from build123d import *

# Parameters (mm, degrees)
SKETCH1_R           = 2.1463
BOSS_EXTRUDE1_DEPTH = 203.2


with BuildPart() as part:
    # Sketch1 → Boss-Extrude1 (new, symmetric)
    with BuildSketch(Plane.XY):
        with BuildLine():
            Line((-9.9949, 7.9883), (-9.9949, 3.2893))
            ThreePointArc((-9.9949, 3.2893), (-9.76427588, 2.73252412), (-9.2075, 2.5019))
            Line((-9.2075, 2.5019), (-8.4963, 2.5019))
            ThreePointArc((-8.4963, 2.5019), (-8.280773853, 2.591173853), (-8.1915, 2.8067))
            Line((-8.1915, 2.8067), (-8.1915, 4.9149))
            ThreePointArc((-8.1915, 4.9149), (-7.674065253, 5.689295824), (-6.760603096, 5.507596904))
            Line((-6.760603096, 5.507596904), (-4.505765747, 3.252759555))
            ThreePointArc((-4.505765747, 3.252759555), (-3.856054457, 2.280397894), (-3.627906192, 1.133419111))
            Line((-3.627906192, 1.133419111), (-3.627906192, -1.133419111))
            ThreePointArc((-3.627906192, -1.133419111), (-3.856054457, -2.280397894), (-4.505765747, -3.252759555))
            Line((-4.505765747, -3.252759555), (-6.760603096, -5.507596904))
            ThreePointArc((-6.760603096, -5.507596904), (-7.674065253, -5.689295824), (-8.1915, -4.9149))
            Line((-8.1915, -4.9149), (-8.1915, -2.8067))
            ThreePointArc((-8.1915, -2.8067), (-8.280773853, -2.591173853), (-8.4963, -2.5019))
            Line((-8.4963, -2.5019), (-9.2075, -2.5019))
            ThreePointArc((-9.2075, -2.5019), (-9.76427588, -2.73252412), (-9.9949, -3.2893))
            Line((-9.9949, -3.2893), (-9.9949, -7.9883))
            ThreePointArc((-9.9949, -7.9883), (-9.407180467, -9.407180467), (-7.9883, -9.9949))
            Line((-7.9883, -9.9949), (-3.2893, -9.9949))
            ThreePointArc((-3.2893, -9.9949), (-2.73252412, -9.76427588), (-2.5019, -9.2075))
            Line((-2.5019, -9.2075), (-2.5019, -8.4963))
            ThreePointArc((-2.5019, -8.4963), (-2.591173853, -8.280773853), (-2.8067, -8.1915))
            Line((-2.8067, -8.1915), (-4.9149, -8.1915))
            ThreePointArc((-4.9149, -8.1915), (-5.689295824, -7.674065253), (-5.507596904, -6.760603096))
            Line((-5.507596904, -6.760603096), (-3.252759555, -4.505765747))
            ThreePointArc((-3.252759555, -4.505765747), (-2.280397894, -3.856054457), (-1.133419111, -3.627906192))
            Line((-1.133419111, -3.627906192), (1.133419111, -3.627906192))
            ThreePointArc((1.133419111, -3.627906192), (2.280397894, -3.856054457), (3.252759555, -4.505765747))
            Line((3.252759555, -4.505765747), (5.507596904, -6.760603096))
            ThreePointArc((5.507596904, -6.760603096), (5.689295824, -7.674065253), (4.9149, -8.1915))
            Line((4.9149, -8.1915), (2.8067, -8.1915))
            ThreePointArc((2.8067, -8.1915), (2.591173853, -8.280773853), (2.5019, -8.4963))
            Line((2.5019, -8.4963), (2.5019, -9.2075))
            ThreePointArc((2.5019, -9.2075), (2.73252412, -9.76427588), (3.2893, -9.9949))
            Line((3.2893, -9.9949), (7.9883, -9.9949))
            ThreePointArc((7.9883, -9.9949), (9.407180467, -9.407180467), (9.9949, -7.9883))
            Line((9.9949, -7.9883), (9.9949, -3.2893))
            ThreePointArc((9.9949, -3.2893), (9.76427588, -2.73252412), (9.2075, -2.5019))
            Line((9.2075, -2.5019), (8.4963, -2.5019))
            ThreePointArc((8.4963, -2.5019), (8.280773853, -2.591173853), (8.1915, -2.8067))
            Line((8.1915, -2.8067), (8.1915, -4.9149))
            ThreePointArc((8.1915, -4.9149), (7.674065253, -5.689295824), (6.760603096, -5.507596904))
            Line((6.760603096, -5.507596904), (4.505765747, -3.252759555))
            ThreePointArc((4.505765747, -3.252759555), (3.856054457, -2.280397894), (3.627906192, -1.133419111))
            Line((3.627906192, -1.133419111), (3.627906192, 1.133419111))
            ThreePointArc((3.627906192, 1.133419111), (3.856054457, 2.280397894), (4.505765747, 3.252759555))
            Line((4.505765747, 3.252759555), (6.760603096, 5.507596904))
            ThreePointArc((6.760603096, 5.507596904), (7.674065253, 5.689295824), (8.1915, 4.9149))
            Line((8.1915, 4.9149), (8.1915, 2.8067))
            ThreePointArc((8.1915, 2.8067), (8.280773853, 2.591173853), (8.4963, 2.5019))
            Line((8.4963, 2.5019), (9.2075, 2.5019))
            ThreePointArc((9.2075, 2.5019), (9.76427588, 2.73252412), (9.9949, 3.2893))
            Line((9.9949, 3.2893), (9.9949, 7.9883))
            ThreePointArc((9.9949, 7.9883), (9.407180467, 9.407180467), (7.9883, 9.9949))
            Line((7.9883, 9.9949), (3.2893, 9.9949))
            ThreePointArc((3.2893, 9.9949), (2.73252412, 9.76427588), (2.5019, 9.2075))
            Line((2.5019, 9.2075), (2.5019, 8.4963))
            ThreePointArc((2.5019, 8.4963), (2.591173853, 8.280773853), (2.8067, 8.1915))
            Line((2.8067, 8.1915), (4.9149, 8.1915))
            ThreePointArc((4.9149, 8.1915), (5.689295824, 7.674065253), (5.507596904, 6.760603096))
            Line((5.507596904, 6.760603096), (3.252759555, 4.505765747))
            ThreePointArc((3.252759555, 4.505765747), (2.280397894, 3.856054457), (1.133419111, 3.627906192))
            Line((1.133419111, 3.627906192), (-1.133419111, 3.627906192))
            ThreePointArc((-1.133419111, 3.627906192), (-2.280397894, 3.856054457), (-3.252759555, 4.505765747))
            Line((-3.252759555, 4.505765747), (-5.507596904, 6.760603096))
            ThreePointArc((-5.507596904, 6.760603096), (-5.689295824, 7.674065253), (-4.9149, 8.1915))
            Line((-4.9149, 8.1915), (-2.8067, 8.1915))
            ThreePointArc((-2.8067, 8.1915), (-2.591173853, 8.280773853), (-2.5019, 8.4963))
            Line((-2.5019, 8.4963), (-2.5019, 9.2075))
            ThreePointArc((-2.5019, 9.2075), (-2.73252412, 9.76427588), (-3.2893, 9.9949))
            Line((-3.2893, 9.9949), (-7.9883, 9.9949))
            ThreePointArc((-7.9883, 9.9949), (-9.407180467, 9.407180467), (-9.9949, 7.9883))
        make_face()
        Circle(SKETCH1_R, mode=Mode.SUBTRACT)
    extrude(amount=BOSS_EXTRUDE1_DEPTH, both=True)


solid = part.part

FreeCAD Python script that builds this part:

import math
import FreeCAD as App
import Part
import Sketcher
from FreeCAD import Vector
Q = App.Units.Quantity

doc = App.newDocument("Part")
body = doc.addObject("PartDesign::Body", "Body")

# Sketch on XY plane
sketch1 = body.newObject("Sketcher::SketchObject", "Sketch")
sketch1.AttachmentSupport = (doc.getObject("XY_Plane"), [""])
sketch1.MapMode = "FlatFace"
sketch1.addGeometry([
    Part.LineSegment(Vector(-9.9949, 7.9883, 0), Vector(-9.9949, 3.2893, 0)),  # 0
    Part.ArcOfCircle(Part.Circle(Vector(-9.2075, 3.2893, 0), Vector(0, 0, 1), 0.7874), math.radians(180), math.radians(270)),  # 1
    Part.LineSegment(Vector(-9.2075, 2.5019, 0), Vector(-8.4963, 2.5019, 0)),  # 2
    Part.ArcOfCircle(Part.Circle(Vector(-8.4963, 2.8067, 0), Vector(0, 0, 1), 0.3048), math.radians(-90), math.radians(0)),  # 3
    Part.LineSegment(Vector(-8.1915, 2.8067, 0), Vector(-8.1915, 4.9149, 0)),  # 4
    Part.ArcOfCircle(Part.Circle(Vector(-7.3533, 4.9149, 0), Vector(0, 0, 1), 0.8382), math.radians(45), math.radians(180)),  # 5
    Part.LineSegment(Vector(-6.760603, 5.507597, 0), Vector(-4.505766, 3.25276, 0)),  # 6
    Part.ArcOfCircle(Part.Circle(Vector(-6.625106, 1.133419, 0), Vector(0, 0, 1), 2.9972), math.radians(0), math.radians(45)),  # 7
    Part.LineSegment(Vector(-3.627906, 1.133419, 0), Vector(-3.627906, -1.133419, 0)),  # 8
    Part.ArcOfCircle(Part.Circle(Vector(-6.625106, -1.133419, 0), Vector(0, 0, 1), 2.9972), math.radians(-45), math.radians(0)),  # 9
    Part.LineSegment(Vector(-4.505766, -3.25276, 0), Vector(-6.760603, -5.507597, 0)),  # 10
    Part.ArcOfCircle(Part.Circle(Vector(-7.3533, -4.9149, 0), Vector(0, 0, 1), 0.8382), math.radians(180), math.radians(315)),  # 11
    Part.LineSegment(Vector(-8.1915, -4.9149, 0), Vector(-8.1915, -2.8067, 0)),  # 12
    Part.ArcOfCircle(Part.Circle(Vector(-8.4963, -2.8067, 0), Vector(0, 0, 1), 0.3048), math.radians(0), math.radians(90)),  # 13
    Part.LineSegment(Vector(-8.4963, -2.5019, 0), Vector(-9.2075, -2.5019, 0)),  # 14
    Part.ArcOfCircle(Part.Circle(Vector(-9.2075, -3.2893, 0), Vector(0, 0, 1), 0.7874), math.radians(90), math.radians(180)),  # 15
    Part.LineSegment(Vector(-9.9949, -3.2893, 0), Vector(-9.9949, -7.9883, 0)),  # 16
    Part.ArcOfCircle(Part.Circle(Vector(-7.9883, -7.9883, 0), Vector(0, 0, 1), 2.0066), math.radians(180), math.radians(270)),  # 17
    Part.LineSegment(Vector(-7.9883, -9.9949, 0), Vector(-3.2893, -9.9949, 0)),  # 18
    Part.ArcOfCircle(Part.Circle(Vector(-3.2893, -9.2075, 0), Vector(0, 0, 1), 0.7874), math.radians(-90), math.radians(0)),  # 19
    Part.LineSegment(Vector(-2.5019, -9.2075, 0), Vector(-2.5019, -8.4963, 0)),  # 20
    Part.ArcOfCircle(Part.Circle(Vector(-2.8067, -8.4963, 0), Vector(0, 0, 1), 0.3048), math.radians(0), math.radians(90)),  # 21
    Part.LineSegment(Vector(-2.8067, -8.1915, 0), Vector(-4.9149, -8.1915, 0)),  # 22
    Part.ArcOfCircle(Part.Circle(Vector(-4.9149, -7.3533, 0), Vector(0, 0, 1), 0.8382), math.radians(135), math.radians(270)),  # 23
    Part.LineSegment(Vector(-5.507597, -6.760603, 0), Vector(-3.25276, -4.505766, 0)),  # 24
    Part.ArcOfCircle(Part.Circle(Vector(-1.133419, -6.625106, 0), Vector(0, 0, 1), 2.9972), math.radians(90), math.radians(135)),  # 25
    Part.LineSegment(Vector(-1.133419, -3.627906, 0), Vector(1.133419, -3.627906, 0)),  # 26
    Part.ArcOfCircle(Part.Circle(Vector(1.133419, -6.625106, 0), Vector(0, 0, 1), 2.9972), math.radians(45), math.radians(90)),  # 27
    Part.LineSegment(Vector(3.25276, -4.505766, 0), Vector(5.507597, -6.760603, 0)),  # 28
    Part.ArcOfCircle(Part.Circle(Vector(4.9149, -7.3533, 0), Vector(0, 0, 1), 0.8382), math.radians(-90), math.radians(45)),  # 29
    Part.LineSegment(Vector(4.9149, -8.1915, 0), Vector(2.8067, -8.1915, 0)),  # 30
    Part.ArcOfCircle(Part.Circle(Vector(2.8067, -8.4963, 0), Vector(0, 0, 1), 0.3048), math.radians(90), math.radians(180)),  # 31
    Part.LineSegment(Vector(2.5019, -8.4963, 0), Vector(2.5019, -9.2075, 0)),  # 32
    Part.ArcOfCircle(Part.Circle(Vector(3.2893, -9.2075, 0), Vector(0, 0, 1), 0.7874), math.radians(180), math.radians(270)),  # 33
    Part.LineSegment(Vector(3.2893, -9.9949, 0), Vector(7.9883, -9.9949, 0)),  # 34
    Part.ArcOfCircle(Part.Circle(Vector(7.9883, -7.9883, 0), Vector(0, 0, 1), 2.0066), math.radians(-90), math.radians(0)),  # 35
    Part.LineSegment(Vector(9.9949, -7.9883, 0), Vector(9.9949, -3.2893, 0)),  # 36
    Part.ArcOfCircle(Part.Circle(Vector(9.2075, -3.2893, 0), Vector(0, 0, 1), 0.7874), math.radians(0), math.radians(90)),  # 37
    Part.LineSegment(Vector(9.2075, -2.5019, 0), Vector(8.4963, -2.5019, 0)),  # 38
    Part.ArcOfCircle(Part.Circle(Vector(8.4963, -2.8067, 0), Vector(0, 0, 1), 0.3048), math.radians(90), math.radians(180)),  # 39
    Part.LineSegment(Vector(8.1915, -2.8067, 0), Vector(8.1915, -4.9149, 0)),  # 40
    Part.ArcOfCircle(Part.Circle(Vector(7.3533, -4.9149, 0), Vector(0, 0, 1), 0.8382), math.radians(-135), math.radians(0)),  # 41
    Part.LineSegment(Vector(6.760603, -5.507597, 0), Vector(4.505766, -3.25276, 0)),  # 42
    Part.ArcOfCircle(Part.Circle(Vector(6.625106, -1.133419, 0), Vector(0, 0, 1), 2.9972), math.radians(180), math.radians(225)),  # 43
    Part.LineSegment(Vector(3.627906, -1.133419, 0), Vector(3.627906, 1.133419, 0)),  # 44
    Part.ArcOfCircle(Part.Circle(Vector(6.625106, 1.133419, 0), Vector(0, 0, 1), 2.9972), math.radians(135), math.radians(180)),  # 45
    Part.LineSegment(Vector(4.505766, 3.25276, 0), Vector(6.760603, 5.507597, 0)),  # 46
    Part.ArcOfCircle(Part.Circle(Vector(7.3533, 4.9149, 0), Vector(0, 0, 1), 0.8382), math.radians(0), math.radians(135)),  # 47
    Part.LineSegment(Vector(8.1915, 4.9149, 0), Vector(8.1915, 2.8067, 0)),  # 48
    Part.ArcOfCircle(Part.Circle(Vector(8.4963, 2.8067, 0), Vector(0, 0, 1), 0.3048), math.radians(180), math.radians(270)),  # 49
    Part.LineSegment(Vector(8.4963, 2.5019, 0), Vector(9.2075, 2.5019, 0)),  # 50
    Part.ArcOfCircle(Part.Circle(Vector(9.2075, 3.2893, 0), Vector(0, 0, 1), 0.7874), math.radians(-90), math.radians(0)),  # 51
    Part.LineSegment(Vector(9.9949, 3.2893, 0), Vector(9.9949, 7.9883, 0)),  # 52
    Part.ArcOfCircle(Part.Circle(Vector(7.9883, 7.9883, 0), Vector(0, 0, 1), 2.0066), math.radians(0), math.radians(90)),  # 53
    Part.LineSegment(Vector(7.9883, 9.9949, 0), Vector(3.2893, 9.9949, 0)),  # 54
    Part.ArcOfCircle(Part.Circle(Vector(3.2893, 9.2075, 0), Vector(0, 0, 1), 0.7874), math.radians(90), math.radians(180)),  # 55
    Part.LineSegment(Vector(2.5019, 9.2075, 0), Vector(2.5019, 8.4963, 0)),  # 56
    Part.ArcOfCircle(Part.Circle(Vector(2.8067, 8.4963, 0), Vector(0, 0, 1), 0.3048), math.radians(180), math.radians(270)),  # 57
    Part.LineSegment(Vector(2.8067, 8.1915, 0), Vector(4.9149, 8.1915, 0)),  # 58
    Part.ArcOfCircle(Part.Circle(Vector(4.9149, 7.3533, 0), Vector(0, 0, 1), 0.8382), math.radians(-45), math.radians(90)),  # 59
    Part.LineSegment(Vector(5.507597, 6.760603, 0), Vector(3.25276, 4.505766, 0)),  # 60
    Part.ArcOfCircle(Part.Circle(Vector(1.133419, 6.625106, 0), Vector(0, 0, 1), 2.9972), math.radians(-90), math.radians(-45)),  # 61
    Part.LineSegment(Vector(1.133419, 3.627906, 0), Vector(-1.133419, 3.627906, 0)),  # 62
    Part.ArcOfCircle(Part.Circle(Vector(-1.133419, 6.625106, 0), Vector(0, 0, 1), 2.9972), math.radians(-135), math.radians(-90)),  # 63
    Part.LineSegment(Vector(-3.25276, 4.505766, 0), Vector(-5.507597, 6.760603, 0)),  # 64
    Part.ArcOfCircle(Part.Circle(Vector(-4.9149, 7.3533, 0), Vector(0, 0, 1), 0.8382), math.radians(90), math.radians(225)),  # 65
    Part.LineSegment(Vector(-4.9149, 8.1915, 0), Vector(-2.8067, 8.1915, 0)),  # 66
    Part.ArcOfCircle(Part.Circle(Vector(-2.8067, 8.4963, 0), Vector(0, 0, 1), 0.3048), math.radians(-90), math.radians(0)),  # 67
    Part.LineSegment(Vector(-2.5019, 8.4963, 0), Vector(-2.5019, 9.2075, 0)),  # 68
    Part.ArcOfCircle(Part.Circle(Vector(-3.2893, 9.2075, 0), Vector(0, 0, 1), 0.7874), math.radians(0), math.radians(90)),  # 69
    Part.LineSegment(Vector(-3.2893, 9.9949, 0), Vector(-7.9883, 9.9949, 0)),  # 70
    Part.ArcOfCircle(Part.Circle(Vector(-7.9883, 7.9883, 0), Vector(0, 0, 1), 2.0066), math.radians(90), math.radians(180)),  # 71
    Part.Circle(Vector(0, 0, 0), Vector(0, 0, 1), 2.1463),  # 72
], False)
sketch1.addConstraint([
    Sketcher.Constraint("Tangent", 0, 2, 1, 1),
    Sketcher.Constraint("Tangent", 1, 2, 2, 1),
    Sketcher.Constraint("Tangent", 2, 2, 3, 1),
    Sketcher.Constraint("Tangent", 3, 2, 4, 1),
    Sketcher.Constraint("Tangent", 4, 2, 5, 2),
    Sketcher.Constraint("Tangent", 5, 1, 6, 1),
    Sketcher.Constraint("Tangent", 6, 2, 7, 2),
    Sketcher.Constraint("Tangent", 7, 1, 8, 1),
    Sketcher.Constraint("Tangent", 8, 2, 9, 2),
    Sketcher.Constraint("Tangent", 9, 1, 10, 1),
    Sketcher.Constraint("Tangent", 10, 2, 11, 2),
    Sketcher.Constraint("Tangent", 11, 1, 12, 1),
    Sketcher.Constraint("Tangent", 12, 2, 13, 1),
    Sketcher.Constraint("Tangent", 13, 2, 14, 1),
    Sketcher.Constraint("Tangent", 14, 2, 15, 1),
    Sketcher.Constraint("Tangent", 15, 2, 16, 1),
    Sketcher.Constraint("Tangent", 16, 2, 17, 1),
    Sketcher.Constraint("Tangent", 17, 2, 18, 1),
    Sketcher.Constraint("Tangent", 18, 2, 19, 1),
    Sketcher.Constraint("Tangent", 19, 2, 20, 1),
    Sketcher.Constraint("Tangent", 20, 2, 21, 1),
    Sketcher.Constraint("Tangent", 21, 2, 22, 1),
    Sketcher.Constraint("Tangent", 22, 2, 23, 2),
    Sketcher.Constraint("Tangent", 23, 1, 24, 1),
    Sketcher.Constraint("Tangent", 24, 2, 25, 2),
    Sketcher.Constraint("Tangent", 25, 1, 26, 1),
    Sketcher.Constraint("Tangent", 26, 2, 27, 2),
    Sketcher.Constraint("Tangent", 27, 1, 28, 1),
    Sketcher.Constraint("Tangent", 28, 2, 29, 2),
    Sketcher.Constraint("Tangent", 29, 1, 30, 1),
    Sketcher.Constraint("Tangent", 30, 2, 31, 1),
    Sketcher.Constraint("Tangent", 31, 2, 32, 1),
    Sketcher.Constraint("Tangent", 32, 2, 33, 1),
    Sketcher.Constraint("Tangent", 33, 2, 34, 1),
    Sketcher.Constraint("Tangent", 34, 2, 35, 1),
    Sketcher.Constraint("Tangent", 35, 2, 36, 1),
    Sketcher.Constraint("Tangent", 36, 2, 37, 1),
    Sketcher.Constraint("Tangent", 37, 2, 38, 1),
    Sketcher.Constraint("Tangent", 38, 2, 39, 1),
    Sketcher.Constraint("Tangent", 39, 2, 40, 1),
    Sketcher.Constraint("Tangent", 40, 2, 41, 2),
    Sketcher.Constraint("Tangent", 41, 1, 42, 1),
    Sketcher.Constraint("Tangent", 42, 2, 43, 2),
    Sketcher.Constraint("Tangent", 43, 1, 44, 1),
    Sketcher.Constraint("Tangent", 44, 2, 45, 2),
    Sketcher.Constraint("Tangent", 45, 1, 46, 1),
    Sketcher.Constraint("Tangent", 46, 2, 47, 2),
    Sketcher.Constraint("Tangent", 47, 1, 48, 1),
    Sketcher.Constraint("Tangent", 48, 2, 49, 1),
    Sketcher.Constraint("Tangent", 49, 2, 50, 1),
    Sketcher.Constraint("Tangent", 50, 2, 51, 1),
    Sketcher.Constraint("Tangent", 51, 2, 52, 1),
    Sketcher.Constraint("Tangent", 52, 2, 53, 1),
    Sketcher.Constraint("Tangent", 53, 2, 54, 1),
    Sketcher.Constraint("Tangent", 54, 2, 55, 1),
    Sketcher.Constraint("Tangent", 55, 2, 56, 1),
    Sketcher.Constraint("Tangent", 56, 2, 57, 1),
    Sketcher.Constraint("Tangent", 57, 2, 58, 1),
    Sketcher.Constraint("Tangent", 58, 2, 59, 2),
    Sketcher.Constraint("Tangent", 59, 1, 60, 1),
    Sketcher.Constraint("Tangent", 60, 2, 61, 2),
    Sketcher.Constraint("Tangent", 61, 1, 62, 1),
    Sketcher.Constraint("Tangent", 62, 2, 63, 2),
    Sketcher.Constraint("Tangent", 63, 1, 64, 1),
    Sketcher.Constraint("Tangent", 64, 2, 65, 2),
    Sketcher.Constraint("Tangent", 65, 1, 66, 1),
    Sketcher.Constraint("Tangent", 66, 2, 67, 1),
    Sketcher.Constraint("Tangent", 67, 2, 68, 1),
    Sketcher.Constraint("Tangent", 68, 2, 69, 1),
    Sketcher.Constraint("Tangent", 69, 2, 70, 1),
    Sketcher.Constraint("Tangent", 70, 2, 71, 1),
    Sketcher.Constraint("Tangent", 71, 2, 0, 1),
    Sketcher.Constraint("Vertical", 0),
    Sketcher.Constraint("Horizontal", 2),
    Sketcher.Constraint("Vertical", 4),
    Sketcher.Constraint("Vertical", 8),
    Sketcher.Constraint("Vertical", 12),
    Sketcher.Constraint("Horizontal", 14),
    Sketcher.Constraint("Vertical", 16),
    Sketcher.Constraint("Horizontal", 18),
    Sketcher.Constraint("Vertical", 20),
    Sketcher.Constraint("Horizontal", 22),
    Sketcher.Constraint("Horizontal", 26),
    Sketcher.Constraint("Horizontal", 30),
    Sketcher.Constraint("Vertical", 32),
    Sketcher.Constraint("Horizontal", 34),
    Sketcher.Constraint("Vertical", 36),
    Sketcher.Constraint("Horizontal", 38),
    Sketcher.Constraint("Vertical", 40),
    Sketcher.Constraint("Vertical", 44),
    Sketcher.Constraint("Vertical", 48),
    Sketcher.Constraint("Horizontal", 50),
    Sketcher.Constraint("Vertical", 52),
    Sketcher.Constraint("Horizontal", 54),
    Sketcher.Constraint("Vertical", 56),
    Sketcher.Constraint("Horizontal", 58),
    Sketcher.Constraint("Horizontal", 62),
    Sketcher.Constraint("Horizontal", 66),
    Sketcher.Constraint("Vertical", 68),
    Sketcher.Constraint("Horizontal", 70),
    Sketcher.Constraint("Coincident", 72, 3, -1, 1),
    Sketcher.Constraint("Equal", 7, 9),
    Sketcher.Constraint("Equal", 5, 11),
    Sketcher.Constraint("Equal", 3, 13),
    Sketcher.Constraint("Equal", 1, 15),
    Sketcher.Constraint("Equal", 15, 19),
    Sketcher.Constraint("Equal", 13, 21),
    Sketcher.Constraint("Equal", 11, 23),
    Sketcher.Constraint("Equal", 9, 25),
    Sketcher.Constraint("Equal", 25, 27),
    Sketcher.Constraint("Equal", 23, 29),
    Sketcher.Constraint("Equal", 21, 31),
    Sketcher.Constraint("Equal", 19, 33),
    Sketcher.Constraint("Equal", 17, 35),
    Sketcher.Constraint("Equal", 33, 37),
    Sketcher.Constraint("Equal", 31, 39),
    Sketcher.Constraint("Equal", 29, 41),
    Sketcher.Constraint("Equal", 27, 43),
    Sketcher.Constraint("Equal", 43, 45),
    Sketcher.Constraint("Equal", 41, 47),
    Sketcher.Constraint("Equal", 39, 49),
    Sketcher.Constraint("Equal", 37, 51),
    Sketcher.Constraint("Equal", 35, 53),
    Sketcher.Constraint("Equal", 51, 55),
    Sketcher.Constraint("Equal", 49, 57),
    Sketcher.Constraint("Equal", 47, 59),
    Sketcher.Constraint("Equal", 45, 61),
    Sketcher.Constraint("Equal", 61, 63),
    Sketcher.Constraint("Equal", 59, 65),
    Sketcher.Constraint("Equal", 57, 67),
    Sketcher.Constraint("Equal", 55, 69),
    Sketcher.Constraint("Equal", 53, 71),
    Sketcher.Constraint("Symmetric", 1, 3, 37, 3, -1, 1),
    Sketcher.Constraint("Symmetric", 5, 3, 41, 3, -1, 1),
    Sketcher.Constraint("Symmetric", 7, 3, 43, 3, -1, 1),
    Sketcher.Constraint("Symmetric", 11, 3, 47, 3, -1, 1),
    Sketcher.Constraint("Symmetric", 15, 3, 51, 3, -1, 1),
    Sketcher.Constraint("Symmetric", 19, 3, 55, 3, -1, 1),
    Sketcher.Constraint("Symmetric", 23, 3, 59, 3, -1, 1),
    Sketcher.Constraint("Symmetric", 25, 3, 61, 3, -1, 1),
    Sketcher.Constraint("Symmetric", 29, 3, 65, 3, -1, 1),
    Sketcher.Constraint("Symmetric", 33, 3, 69, 3, -1, 1),
    Sketcher.Constraint("Symmetric", 23, 3, 29, 3, -2),
    Sketcher.Constraint("Symmetric", 19, 3, 33, 3, -2),
    Sketcher.Constraint("Symmetric", 15, 3, 37, 3, -2),
    Sketcher.Constraint("Symmetric", 11, 3, 41, 3, -2),
    Sketcher.Constraint("Perpendicular", 6, 10),
    Sketcher.Constraint("Parallel", 10, 24),
    Sketcher.Constraint("Perpendicular", 24, 28),
    Sketcher.Constraint("Perpendicular", 42, 46),
    Sketcher.Constraint("Perpendicular", 60, 64),
    Sketcher.Constraint("Horizontal", 9, 3, 43, 3),
    Sketcher.Constraint("Equal", 70, 0),
    Sketcher.Constraint("Equal", 66, 4),
    Sketcher.Constraint("Equal", 62, 8),
    Sketcher.Constraint("Equal", 50, 20),
    Sketcher.Constraint("Equal", 10, 24),
    Sketcher.Constraint("Diameter", 72, Q("0.169 in")),
    Sketcher.Constraint("Radius", 1, Q("0.031 in")),
    Sketcher.Constraint("Radius", 3, Q("0.012 in")),
    Sketcher.Constraint("Radius", 5, Q("0.033 in")),
    Sketcher.Constraint("Radius", 7, Q("0.118 in")),
    Sketcher.Constraint("Radius", 17, Q("0.079 in")),
    Sketcher.Constraint("DistanceX", 2, 1, 2, 2, Q("0.028 in")),
    Sketcher.Constraint("DistanceX", 18, 1, 18, 2, Q("0.185 in")),
    Sketcher.Constraint("DistanceX", 22, 2, 22, 1, Q("0.083 in")),
    Sketcher.Constraint("DistanceX", 1, 3, -1, 1, Q("0.3625 in")),
    Sketcher.Constraint("DistanceX", 26, 1, 26, 2, 2.266838),
])
pad1 = body.newObject("PartDesign::Pad", "Pad")
pad1.Profile = sketch1
pad1.Length = Q("16 in")
pad1.Midplane = True

doc.recompute()
